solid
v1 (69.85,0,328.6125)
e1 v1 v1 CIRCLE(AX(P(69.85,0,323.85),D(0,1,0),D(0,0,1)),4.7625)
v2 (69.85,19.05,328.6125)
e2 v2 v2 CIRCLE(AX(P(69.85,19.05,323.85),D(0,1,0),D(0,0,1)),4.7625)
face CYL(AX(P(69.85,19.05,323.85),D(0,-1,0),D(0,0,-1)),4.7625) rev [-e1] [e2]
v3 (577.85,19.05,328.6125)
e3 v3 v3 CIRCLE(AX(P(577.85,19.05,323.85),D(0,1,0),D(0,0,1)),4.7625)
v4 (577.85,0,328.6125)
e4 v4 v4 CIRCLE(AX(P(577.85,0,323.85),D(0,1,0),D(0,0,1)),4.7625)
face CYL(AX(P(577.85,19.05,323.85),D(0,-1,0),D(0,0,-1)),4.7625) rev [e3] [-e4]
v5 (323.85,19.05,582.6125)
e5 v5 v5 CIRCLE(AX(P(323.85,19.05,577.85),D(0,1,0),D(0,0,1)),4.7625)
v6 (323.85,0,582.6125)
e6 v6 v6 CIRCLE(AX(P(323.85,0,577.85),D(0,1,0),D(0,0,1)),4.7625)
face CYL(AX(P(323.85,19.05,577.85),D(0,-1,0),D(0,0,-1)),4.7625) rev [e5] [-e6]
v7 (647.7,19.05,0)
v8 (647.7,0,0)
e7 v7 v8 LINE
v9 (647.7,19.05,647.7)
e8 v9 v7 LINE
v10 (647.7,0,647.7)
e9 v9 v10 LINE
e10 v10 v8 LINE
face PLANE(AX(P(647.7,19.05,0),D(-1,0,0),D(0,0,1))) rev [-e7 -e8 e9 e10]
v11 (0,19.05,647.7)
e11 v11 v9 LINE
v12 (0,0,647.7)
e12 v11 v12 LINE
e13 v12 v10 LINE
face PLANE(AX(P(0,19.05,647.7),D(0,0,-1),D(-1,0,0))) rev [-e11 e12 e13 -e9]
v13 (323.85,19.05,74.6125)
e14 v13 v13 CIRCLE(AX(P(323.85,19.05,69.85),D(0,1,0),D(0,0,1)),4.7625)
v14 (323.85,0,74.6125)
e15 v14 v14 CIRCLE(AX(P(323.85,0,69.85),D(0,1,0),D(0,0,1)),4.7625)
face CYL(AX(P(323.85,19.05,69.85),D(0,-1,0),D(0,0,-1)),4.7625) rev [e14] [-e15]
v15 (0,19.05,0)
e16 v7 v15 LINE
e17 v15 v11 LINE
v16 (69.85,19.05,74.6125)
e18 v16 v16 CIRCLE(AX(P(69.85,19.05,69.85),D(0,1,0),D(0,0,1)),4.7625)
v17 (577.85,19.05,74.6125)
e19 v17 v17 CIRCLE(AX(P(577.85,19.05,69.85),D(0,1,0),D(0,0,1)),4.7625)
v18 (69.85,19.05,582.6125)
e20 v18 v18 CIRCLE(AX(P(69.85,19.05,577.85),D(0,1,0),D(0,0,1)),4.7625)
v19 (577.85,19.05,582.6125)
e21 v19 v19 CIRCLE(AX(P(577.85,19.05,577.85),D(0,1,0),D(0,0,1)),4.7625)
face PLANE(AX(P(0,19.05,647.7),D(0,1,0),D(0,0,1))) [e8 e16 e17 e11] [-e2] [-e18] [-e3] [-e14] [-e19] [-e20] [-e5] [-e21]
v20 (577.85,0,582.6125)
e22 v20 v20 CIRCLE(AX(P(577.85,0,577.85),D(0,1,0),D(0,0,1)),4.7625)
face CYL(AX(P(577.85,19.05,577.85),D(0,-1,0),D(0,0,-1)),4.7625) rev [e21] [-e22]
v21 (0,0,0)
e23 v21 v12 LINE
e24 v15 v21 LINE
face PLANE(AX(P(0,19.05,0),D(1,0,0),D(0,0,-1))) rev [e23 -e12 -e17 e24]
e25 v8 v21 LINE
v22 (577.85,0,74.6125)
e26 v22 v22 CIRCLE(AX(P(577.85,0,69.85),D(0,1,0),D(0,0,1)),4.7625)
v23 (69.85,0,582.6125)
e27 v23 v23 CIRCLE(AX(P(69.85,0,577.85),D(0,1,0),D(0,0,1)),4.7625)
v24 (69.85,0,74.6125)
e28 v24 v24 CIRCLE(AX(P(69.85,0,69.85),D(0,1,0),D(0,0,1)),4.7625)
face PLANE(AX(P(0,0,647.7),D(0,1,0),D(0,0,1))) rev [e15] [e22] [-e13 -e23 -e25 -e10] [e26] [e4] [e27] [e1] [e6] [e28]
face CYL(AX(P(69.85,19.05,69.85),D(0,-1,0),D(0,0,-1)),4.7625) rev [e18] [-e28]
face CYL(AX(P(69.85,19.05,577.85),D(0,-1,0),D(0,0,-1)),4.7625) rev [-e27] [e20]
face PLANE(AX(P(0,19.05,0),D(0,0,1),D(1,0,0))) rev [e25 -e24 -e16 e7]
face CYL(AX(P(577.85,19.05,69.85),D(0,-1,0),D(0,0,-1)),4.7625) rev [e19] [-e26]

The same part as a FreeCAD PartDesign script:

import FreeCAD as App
import Part
import Sketcher

V = App.Vector
Q = App.Units.Quantity


def add_polygon(sketch, points):
    """Adds a closed chain of lines whose ends are joined by coincident constraints."""
    first, n = sketch.GeometryCount, len(points)
    for a, b in zip(points, points[1:] + points[:1]):
        sketch.addGeometry(Part.LineSegment(App.Vector(*a, 0), App.Vector(*b, 0)), False)
    for i in range(n):
        sketch.addConstraint(Sketcher.Constraint("Coincident", first + i, 2, first + (i + 1) % n, 1))

doc = App.newDocument("Part")
params = doc.addObject("Spreadsheet::Sheet", "Params")
for row, (alias, value) in enumerate([
    ("sketch1_diameter", "0.375 in"),
    ("sketch1_width", "25.5 in"),
    ("pad1_length", "0.75 in"),
], start=1):
    params.set(f"A{row}", alias)
    params.set(f"B{row}", "=" + value)
    params.setAlias(f"B{row}", alias)

body = doc.addObject("PartDesign::Body", "Body")

sketch1 = body.newObject("Sketcher::SketchObject", "Sketch")
sketch1.AttachmentSupport = (doc.getObject("XZ_Plane"), [""])
sketch1.MapMode = "FlatFace"
add_polygon(sketch1, [(0, 0), (0, 647.7), (647.7, 647.7), (647.7, 0)])
sketch1.addGeometry(Part.Circle(V(69.8, 577.9, 0), V(0, 0, 1), 4.8), False)
sketch1.addGeometry(Part.Circle(V(69.8, 323.9, 0), V(0, 0, 1), 4.8), False)
sketch1.addGeometry(Part.Circle(V(323.9, 577.9, 0), V(0, 0, 1), 4.8), False)
sketch1.addGeometry(Part.Circle(V(577.9, 577.9, 0), V(0, 0, 1), 4.8), False)
sketch1.addGeometry(Part.Circle(V(577.9, 323.9, 0), V(0, 0, 1), 4.8), False)
sketch1.addGeometry(Part.Circle(V(69.8, 69.8, 0), V(0, 0, 1), 4.8), False)
sketch1.addGeometry(Part.Circle(V(323.9, 69.8, 0), V(0, 0, 1), 4.8), False)
sketch1.addGeometry(Part.Circle(V(577.9, 69.8, 0), V(0, 0, 1), 4.8), False)
sketch1.addConstraint([
    Sketcher.Constraint("Vertical", 0),
    Sketcher.Constraint("Horizontal", 1),
    Sketcher.Constraint("Vertical", 2),
    Sketcher.Constraint("Horizontal", 3),
    Sketcher.Constraint("Coincident", 3, 2, -1, 1),
    Sketcher.Constraint("Equal", 4, 5),
    Sketcher.Constraint("Equal", 5, 6),
    Sketcher.Constraint("Equal", 6, 7),
    Sketcher.Constraint("Equal", 7, 8),
    Sketcher.Constraint("Equal", 8, 9),
    Sketcher.Constraint("Equal", 9, 10),
    Sketcher.Constraint("Equal", 10, 11),
    Sketcher.Constraint("Horizontal", 4, 3, 6, 3),
    Sketcher.Constraint("Horizontal", 6, 3, 7, 3),
    Sketcher.Constraint("Horizontal", 5, 3, 8, 3),
    Sketcher.Constraint("Horizontal", 9, 3, 10, 3),
    Sketcher.Constraint("Horizontal", 10, 3, 11, 3),
    Sketcher.Constraint("Vertical", 4, 3, 5, 3),
    Sketcher.Constraint("Vertical", 7, 3, 8, 3),
    Sketcher.Constraint("Vertical", 5, 3, 9, 3),
    Sketcher.Constraint("Vertical", 6, 3, 10, 3),
    Sketcher.Constraint("Vertical", 8, 3, 11, 3),
    Sketcher.Constraint("Equal", 3, 0),
    Sketcher.Constraint("Diameter", 4, Q("0.375 in")),
    Sketcher.Constraint("DistanceX", 1, 1, 1, 2, Q("25.5 in")),
    Sketcher.Constraint("DistanceY", 5, 3, 4, 3, Q("10 in")),
    Sketcher.Constraint("DistanceX", 4, 3, 6, 3, Q("10 in")),
    Sketcher.Constraint("DistanceX", 6, 3, 7, 3, Q("10 in")),
    Sketcher.Constraint("DistanceY", 9, 3, 5, 3, Q("10 in")),
    Sketcher.Constraint("DistanceX", -1, 1, 4, 3, Q("2.75 in")),
    Sketcher.Constraint("DistanceY", -1, 1, 4, 3, Q("22.75 in")),
])
sketch1.setExpression("Constraints[27]", "Params.sketch1_diameter")
sketch1.setExpression("Constraints[28]", "Params.sketch1_width")
pad1 = body.newObject("PartDesign::Pad", "Pad")
pad1.Profile = sketch1
pad1.setExpression("Length", "Params.pad1_length")
pad1.Reversed = True

doc.recompute()
